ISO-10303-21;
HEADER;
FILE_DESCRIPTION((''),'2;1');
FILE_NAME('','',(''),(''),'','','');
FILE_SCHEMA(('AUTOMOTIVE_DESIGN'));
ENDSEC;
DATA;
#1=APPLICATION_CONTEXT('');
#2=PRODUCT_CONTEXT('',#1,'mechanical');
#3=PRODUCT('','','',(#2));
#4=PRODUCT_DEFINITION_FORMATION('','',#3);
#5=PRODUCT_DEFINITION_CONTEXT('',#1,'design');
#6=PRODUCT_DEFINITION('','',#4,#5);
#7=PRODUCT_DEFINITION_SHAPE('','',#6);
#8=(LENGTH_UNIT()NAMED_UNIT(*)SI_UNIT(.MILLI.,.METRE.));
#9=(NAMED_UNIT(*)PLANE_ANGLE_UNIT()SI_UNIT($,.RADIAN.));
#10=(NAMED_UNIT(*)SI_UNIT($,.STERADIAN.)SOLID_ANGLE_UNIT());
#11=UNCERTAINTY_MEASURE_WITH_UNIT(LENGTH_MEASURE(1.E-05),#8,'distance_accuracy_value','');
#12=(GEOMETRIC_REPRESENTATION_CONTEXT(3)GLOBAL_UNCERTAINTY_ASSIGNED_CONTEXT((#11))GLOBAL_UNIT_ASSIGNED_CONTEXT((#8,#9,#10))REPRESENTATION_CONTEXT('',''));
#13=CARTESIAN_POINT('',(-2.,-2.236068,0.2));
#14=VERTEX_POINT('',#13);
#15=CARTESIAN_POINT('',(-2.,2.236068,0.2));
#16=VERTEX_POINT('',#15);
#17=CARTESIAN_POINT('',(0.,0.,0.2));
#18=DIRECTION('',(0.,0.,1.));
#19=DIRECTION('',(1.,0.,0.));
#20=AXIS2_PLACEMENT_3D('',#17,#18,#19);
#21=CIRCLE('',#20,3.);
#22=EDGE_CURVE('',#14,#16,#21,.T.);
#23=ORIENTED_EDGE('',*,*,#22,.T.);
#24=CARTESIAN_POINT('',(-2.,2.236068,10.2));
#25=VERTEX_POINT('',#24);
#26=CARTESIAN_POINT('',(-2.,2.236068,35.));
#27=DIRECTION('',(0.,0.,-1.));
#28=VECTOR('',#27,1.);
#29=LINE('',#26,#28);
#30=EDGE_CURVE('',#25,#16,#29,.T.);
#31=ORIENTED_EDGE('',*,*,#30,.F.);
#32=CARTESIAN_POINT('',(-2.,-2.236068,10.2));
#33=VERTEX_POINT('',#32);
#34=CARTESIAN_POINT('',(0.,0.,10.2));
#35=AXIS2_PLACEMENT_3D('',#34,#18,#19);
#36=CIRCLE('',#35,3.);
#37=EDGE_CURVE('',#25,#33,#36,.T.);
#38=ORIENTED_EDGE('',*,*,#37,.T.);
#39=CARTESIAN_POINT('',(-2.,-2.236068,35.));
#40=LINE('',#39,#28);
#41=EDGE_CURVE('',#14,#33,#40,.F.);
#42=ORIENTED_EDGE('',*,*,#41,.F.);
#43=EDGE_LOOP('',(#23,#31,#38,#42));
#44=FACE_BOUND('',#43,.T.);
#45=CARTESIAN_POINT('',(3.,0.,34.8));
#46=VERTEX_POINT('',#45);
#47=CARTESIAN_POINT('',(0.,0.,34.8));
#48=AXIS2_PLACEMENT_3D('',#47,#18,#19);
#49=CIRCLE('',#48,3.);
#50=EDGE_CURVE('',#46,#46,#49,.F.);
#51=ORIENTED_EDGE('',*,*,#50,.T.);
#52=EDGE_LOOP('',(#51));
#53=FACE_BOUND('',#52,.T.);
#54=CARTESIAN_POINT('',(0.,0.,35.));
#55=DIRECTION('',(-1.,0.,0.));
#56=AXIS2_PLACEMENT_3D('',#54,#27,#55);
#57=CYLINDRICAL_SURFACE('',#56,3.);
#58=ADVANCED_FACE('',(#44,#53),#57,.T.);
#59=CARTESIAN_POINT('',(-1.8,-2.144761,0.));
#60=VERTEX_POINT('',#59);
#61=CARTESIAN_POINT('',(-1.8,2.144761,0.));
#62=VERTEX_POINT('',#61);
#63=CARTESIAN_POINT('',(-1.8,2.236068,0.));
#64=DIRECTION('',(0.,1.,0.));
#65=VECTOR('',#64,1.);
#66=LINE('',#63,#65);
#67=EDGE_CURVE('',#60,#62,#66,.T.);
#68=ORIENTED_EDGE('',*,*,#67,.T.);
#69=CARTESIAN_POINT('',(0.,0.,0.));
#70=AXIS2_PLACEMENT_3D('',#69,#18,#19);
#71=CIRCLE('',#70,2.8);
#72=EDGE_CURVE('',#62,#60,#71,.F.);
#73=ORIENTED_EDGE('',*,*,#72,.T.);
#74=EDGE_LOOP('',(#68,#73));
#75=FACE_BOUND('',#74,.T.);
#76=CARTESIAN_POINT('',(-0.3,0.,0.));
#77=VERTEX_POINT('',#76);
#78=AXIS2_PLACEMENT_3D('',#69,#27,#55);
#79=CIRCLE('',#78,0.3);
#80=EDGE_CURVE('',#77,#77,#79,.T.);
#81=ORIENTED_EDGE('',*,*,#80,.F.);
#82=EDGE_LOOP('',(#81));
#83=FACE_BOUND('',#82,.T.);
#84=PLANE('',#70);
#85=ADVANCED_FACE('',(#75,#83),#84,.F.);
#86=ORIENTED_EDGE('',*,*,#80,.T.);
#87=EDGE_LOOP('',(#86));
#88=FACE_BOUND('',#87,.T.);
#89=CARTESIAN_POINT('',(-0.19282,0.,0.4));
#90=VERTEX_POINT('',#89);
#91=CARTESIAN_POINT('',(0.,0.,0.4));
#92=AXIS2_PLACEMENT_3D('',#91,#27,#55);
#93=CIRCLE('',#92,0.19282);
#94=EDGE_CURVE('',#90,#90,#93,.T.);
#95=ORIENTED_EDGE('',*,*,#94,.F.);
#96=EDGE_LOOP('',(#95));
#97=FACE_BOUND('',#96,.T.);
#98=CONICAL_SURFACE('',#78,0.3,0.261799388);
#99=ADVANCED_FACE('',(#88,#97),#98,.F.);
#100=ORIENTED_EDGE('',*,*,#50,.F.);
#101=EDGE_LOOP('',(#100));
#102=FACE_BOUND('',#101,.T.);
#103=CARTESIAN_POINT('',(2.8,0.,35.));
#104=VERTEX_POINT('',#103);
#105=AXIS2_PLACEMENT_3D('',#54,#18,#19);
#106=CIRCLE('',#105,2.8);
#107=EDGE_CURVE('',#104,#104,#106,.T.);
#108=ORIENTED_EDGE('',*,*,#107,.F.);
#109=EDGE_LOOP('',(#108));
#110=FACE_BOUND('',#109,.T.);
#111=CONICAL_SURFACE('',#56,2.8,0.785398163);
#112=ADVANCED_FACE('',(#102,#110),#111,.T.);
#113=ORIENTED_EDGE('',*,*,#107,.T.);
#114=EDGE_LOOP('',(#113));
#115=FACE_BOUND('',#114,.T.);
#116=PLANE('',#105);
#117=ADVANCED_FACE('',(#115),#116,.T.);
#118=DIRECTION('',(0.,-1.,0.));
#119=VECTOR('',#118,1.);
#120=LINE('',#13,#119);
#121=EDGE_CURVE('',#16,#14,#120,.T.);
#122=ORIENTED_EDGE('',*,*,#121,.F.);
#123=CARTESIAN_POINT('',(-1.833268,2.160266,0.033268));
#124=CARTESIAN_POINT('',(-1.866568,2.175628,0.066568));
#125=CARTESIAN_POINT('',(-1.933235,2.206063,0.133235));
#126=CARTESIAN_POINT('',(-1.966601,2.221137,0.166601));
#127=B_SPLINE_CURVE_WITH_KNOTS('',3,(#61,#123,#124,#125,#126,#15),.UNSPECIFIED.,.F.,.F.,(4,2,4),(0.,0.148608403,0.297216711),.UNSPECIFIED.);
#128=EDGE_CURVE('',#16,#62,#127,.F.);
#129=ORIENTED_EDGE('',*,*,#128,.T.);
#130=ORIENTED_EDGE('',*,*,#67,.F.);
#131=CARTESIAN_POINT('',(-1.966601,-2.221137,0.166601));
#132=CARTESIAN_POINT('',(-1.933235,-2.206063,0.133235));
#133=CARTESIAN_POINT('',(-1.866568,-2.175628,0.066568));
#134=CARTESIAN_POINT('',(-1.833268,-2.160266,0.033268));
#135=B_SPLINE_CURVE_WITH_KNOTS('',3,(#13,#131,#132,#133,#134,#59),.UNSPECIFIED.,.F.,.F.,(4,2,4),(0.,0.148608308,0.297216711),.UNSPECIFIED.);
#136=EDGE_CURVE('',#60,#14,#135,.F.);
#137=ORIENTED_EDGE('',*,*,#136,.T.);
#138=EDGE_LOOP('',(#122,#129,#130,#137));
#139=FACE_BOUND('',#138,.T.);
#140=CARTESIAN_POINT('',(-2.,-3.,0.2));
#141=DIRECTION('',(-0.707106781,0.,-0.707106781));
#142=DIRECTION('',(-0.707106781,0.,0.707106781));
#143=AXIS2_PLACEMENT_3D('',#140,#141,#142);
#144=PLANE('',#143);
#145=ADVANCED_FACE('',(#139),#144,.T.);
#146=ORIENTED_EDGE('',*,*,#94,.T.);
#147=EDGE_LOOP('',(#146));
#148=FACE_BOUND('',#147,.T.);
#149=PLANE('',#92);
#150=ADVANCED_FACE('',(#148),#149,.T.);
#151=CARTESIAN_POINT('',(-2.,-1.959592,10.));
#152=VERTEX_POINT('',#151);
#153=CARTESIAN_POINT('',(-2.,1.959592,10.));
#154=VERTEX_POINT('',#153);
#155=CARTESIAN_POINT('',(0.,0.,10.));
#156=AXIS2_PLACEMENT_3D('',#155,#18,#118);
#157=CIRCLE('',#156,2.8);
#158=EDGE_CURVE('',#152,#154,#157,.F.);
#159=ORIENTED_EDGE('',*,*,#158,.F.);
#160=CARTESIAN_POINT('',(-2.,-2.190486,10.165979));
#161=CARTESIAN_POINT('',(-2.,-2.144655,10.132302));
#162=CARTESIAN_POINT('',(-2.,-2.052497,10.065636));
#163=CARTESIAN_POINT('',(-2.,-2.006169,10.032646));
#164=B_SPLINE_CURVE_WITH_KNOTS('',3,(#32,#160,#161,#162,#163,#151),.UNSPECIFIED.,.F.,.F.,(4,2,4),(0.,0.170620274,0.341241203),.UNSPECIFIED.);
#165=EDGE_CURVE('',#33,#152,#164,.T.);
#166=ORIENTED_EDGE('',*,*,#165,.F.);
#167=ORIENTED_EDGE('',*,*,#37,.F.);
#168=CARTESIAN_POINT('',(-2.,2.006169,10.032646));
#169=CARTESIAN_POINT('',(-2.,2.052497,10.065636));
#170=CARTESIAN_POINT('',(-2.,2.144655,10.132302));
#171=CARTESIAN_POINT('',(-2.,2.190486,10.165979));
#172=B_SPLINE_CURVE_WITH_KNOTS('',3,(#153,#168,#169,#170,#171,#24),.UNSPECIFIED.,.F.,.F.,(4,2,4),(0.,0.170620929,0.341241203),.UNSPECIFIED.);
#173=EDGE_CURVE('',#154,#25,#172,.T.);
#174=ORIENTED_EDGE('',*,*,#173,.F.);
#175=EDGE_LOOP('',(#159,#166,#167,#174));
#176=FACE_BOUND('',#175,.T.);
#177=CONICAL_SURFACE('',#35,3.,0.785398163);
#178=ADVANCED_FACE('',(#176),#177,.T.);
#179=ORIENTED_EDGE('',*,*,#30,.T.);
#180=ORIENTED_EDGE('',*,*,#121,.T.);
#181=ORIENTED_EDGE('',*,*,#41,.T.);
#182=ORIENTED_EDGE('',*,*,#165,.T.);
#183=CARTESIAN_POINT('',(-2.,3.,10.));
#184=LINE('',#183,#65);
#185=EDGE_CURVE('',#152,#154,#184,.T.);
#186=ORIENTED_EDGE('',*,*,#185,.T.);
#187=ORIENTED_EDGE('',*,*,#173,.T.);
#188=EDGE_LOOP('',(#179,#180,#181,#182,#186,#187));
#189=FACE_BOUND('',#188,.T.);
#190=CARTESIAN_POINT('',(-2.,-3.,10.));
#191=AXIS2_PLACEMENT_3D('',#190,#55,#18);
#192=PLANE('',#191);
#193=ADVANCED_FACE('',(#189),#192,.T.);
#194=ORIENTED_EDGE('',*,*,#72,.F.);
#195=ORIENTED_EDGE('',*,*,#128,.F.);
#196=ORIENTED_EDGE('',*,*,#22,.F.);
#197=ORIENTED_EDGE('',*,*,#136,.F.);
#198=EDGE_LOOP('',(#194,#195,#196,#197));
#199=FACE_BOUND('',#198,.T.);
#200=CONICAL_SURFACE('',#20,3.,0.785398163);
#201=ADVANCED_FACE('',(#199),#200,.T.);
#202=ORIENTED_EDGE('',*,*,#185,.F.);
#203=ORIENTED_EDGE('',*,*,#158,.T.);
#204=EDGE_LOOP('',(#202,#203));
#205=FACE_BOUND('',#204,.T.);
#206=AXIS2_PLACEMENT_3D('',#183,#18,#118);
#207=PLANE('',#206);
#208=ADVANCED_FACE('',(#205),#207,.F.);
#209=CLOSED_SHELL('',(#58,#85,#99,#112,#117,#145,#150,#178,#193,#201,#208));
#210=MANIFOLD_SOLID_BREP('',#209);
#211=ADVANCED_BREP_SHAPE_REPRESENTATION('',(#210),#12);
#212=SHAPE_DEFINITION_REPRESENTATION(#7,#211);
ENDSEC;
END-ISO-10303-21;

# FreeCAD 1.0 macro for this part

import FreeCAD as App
import Part
import Sketcher

V = App.Vector
Q = App.Units.Quantity


def edges_at(feature, points):
    """Names of the edges that pass closest to the given points."""
    edges = feature.Shape.Edges
    near = lambda p: min(range(len(edges)), key=lambda i: edges[i].distToShape(Part.Vertex(*p))[0])
    return sorted({f"Edge{near(p) + 1}" for p in points})


def faces_at(feature, points):
    """Names of the faces that lie closest to the given points."""
    faces = feature.Shape.Faces
    near = lambda p: min(range(len(faces)), key=lambda i: faces[i].distToShape(Part.Vertex(*p))[0])
    return sorted({f"Face{near(p) + 1}" for p in points})

doc = App.newDocument("Part")
body = doc.addObject("PartDesign::Body", "Body")

# Sketch on XY plane
sketch1 = body.newObject("Sketcher::SketchObject", "Sketch")
sketch1.AttachmentSupport = (doc.getObject("XY_Plane"), [""])
sketch1.MapMode = "FlatFace"
sketch1.addGeometry(Part.Circle(V(0, 0, 0), V(0, 0, 1), 3), False)
sketch1.addConstraint([
    Sketcher.Constraint("Coincident", 0, 3, -1, 1),
    Sketcher.Constraint("Diameter", 0, Q("6 mm")),
])
pad1 = body.newObject("PartDesign::Pad", "Pad")
pad1.Profile = sketch1
pad1.Length = 35

# Sketch on YZ plane
sketch2 = body.newObject("Sketcher::SketchObject", "Sketch001")
sketch2.AttachmentSupport = (doc.getObject("YZ_Plane"), [""])
sketch2.MapMode = "FlatFace"
sketch2.AttachmentOffset = App.Placement(V(0, 0, -3), App.Rotation())
sketch2.addGeometry([
    Part.LineSegment(V(3, 0, 0), V(-3, 0, 0)),
    Part.LineSegment(V(-3, 0, 0), V(-3, 10, 0)),
    Part.LineSegment(V(-3, 10, 0), V(3, 10, 0)),
    Part.LineSegment(V(3, 10, 0), V(3, 0, 0)),
], False)
sketch2.addConstraint([
    Sketcher.Constraint("Coincident", 0, 2, 1, 1),
    Sketcher.Constraint("Coincident", 1, 2, 2, 1),
    Sketcher.Constraint("Coincident", 2, 2, 3, 1),
    Sketcher.Constraint("Coincident", 3, 2, 0, 1),
    Sketcher.Constraint("Horizontal", 0),
    Sketcher.Constraint("Vertical", 1),
    Sketcher.Constraint("Horizontal", 2),
    Sketcher.Constraint("Vertical", 3),
    Sketcher.Constraint("Symmetric", 0, 2, 3, 2, -1, 1),
    Sketcher.Constraint("DistanceX", 0, 2, 0, 1, Q("6 mm")),
    Sketcher.Constraint("DistanceY", 1, 1, 1, 2, Q("10 mm")),
])
pocket1 = body.newObject("PartDesign::Pocket", "Pocket")
pocket1.Profile = sketch2
pocket1.Length = 1
pocket1.Reversed = True
doc.recompute()

chamfer = body.newObject("PartDesign::Chamfer", "Chamfer")
chamfer.Base = (pocket1, edges_at(pocket1, [
    (1.225, 2.739, 0),
    (-2, 0, 0),
    (-3, 0, 10),
    (-3, 0, 35),
]))
chamfer.Size = 0.2
body2 = doc.addObject("PartDesign::Body", "Body001")

# Sketch on XY plane
sketch3 = body2.newObject("Sketcher::SketchObject", "Sketch002")
sketch3.AttachmentSupport = (doc.getObject("XY_Plane001"), [""])
sketch3.MapMode = "FlatFace"
sketch3.addGeometry(Part.Circle(V(0, 0, 0), V(0, 0, 1), 0.3), False)
sketch3.addConstraint([
    Sketcher.Constraint("Coincident", 0, 3, -1, 1),
    Sketcher.Constraint("Diameter", 0, Q("0.6 mm")),
])
pad2 = body2.newObject("PartDesign::Pad", "Pad001")
pad2.Profile = sketch3
pad2.Length = 0.4
doc.recompute()

draft = body2.newObject("PartDesign::Draft", "Draft")
draft.Base = (pad2, faces_at(pad2, [(0.3, 0, 0.2)]))
draft.NeutralPlane = (doc.getObject("XY_Plane001"), [""])
draft.Angle = 15
draft.Reversed = False
doc.recompute()

boolean = body.newObject("PartDesign::Boolean", "Boolean")
boolean.Type = "Cut"
boolean.addObjects([body2])

doc.recompute()
